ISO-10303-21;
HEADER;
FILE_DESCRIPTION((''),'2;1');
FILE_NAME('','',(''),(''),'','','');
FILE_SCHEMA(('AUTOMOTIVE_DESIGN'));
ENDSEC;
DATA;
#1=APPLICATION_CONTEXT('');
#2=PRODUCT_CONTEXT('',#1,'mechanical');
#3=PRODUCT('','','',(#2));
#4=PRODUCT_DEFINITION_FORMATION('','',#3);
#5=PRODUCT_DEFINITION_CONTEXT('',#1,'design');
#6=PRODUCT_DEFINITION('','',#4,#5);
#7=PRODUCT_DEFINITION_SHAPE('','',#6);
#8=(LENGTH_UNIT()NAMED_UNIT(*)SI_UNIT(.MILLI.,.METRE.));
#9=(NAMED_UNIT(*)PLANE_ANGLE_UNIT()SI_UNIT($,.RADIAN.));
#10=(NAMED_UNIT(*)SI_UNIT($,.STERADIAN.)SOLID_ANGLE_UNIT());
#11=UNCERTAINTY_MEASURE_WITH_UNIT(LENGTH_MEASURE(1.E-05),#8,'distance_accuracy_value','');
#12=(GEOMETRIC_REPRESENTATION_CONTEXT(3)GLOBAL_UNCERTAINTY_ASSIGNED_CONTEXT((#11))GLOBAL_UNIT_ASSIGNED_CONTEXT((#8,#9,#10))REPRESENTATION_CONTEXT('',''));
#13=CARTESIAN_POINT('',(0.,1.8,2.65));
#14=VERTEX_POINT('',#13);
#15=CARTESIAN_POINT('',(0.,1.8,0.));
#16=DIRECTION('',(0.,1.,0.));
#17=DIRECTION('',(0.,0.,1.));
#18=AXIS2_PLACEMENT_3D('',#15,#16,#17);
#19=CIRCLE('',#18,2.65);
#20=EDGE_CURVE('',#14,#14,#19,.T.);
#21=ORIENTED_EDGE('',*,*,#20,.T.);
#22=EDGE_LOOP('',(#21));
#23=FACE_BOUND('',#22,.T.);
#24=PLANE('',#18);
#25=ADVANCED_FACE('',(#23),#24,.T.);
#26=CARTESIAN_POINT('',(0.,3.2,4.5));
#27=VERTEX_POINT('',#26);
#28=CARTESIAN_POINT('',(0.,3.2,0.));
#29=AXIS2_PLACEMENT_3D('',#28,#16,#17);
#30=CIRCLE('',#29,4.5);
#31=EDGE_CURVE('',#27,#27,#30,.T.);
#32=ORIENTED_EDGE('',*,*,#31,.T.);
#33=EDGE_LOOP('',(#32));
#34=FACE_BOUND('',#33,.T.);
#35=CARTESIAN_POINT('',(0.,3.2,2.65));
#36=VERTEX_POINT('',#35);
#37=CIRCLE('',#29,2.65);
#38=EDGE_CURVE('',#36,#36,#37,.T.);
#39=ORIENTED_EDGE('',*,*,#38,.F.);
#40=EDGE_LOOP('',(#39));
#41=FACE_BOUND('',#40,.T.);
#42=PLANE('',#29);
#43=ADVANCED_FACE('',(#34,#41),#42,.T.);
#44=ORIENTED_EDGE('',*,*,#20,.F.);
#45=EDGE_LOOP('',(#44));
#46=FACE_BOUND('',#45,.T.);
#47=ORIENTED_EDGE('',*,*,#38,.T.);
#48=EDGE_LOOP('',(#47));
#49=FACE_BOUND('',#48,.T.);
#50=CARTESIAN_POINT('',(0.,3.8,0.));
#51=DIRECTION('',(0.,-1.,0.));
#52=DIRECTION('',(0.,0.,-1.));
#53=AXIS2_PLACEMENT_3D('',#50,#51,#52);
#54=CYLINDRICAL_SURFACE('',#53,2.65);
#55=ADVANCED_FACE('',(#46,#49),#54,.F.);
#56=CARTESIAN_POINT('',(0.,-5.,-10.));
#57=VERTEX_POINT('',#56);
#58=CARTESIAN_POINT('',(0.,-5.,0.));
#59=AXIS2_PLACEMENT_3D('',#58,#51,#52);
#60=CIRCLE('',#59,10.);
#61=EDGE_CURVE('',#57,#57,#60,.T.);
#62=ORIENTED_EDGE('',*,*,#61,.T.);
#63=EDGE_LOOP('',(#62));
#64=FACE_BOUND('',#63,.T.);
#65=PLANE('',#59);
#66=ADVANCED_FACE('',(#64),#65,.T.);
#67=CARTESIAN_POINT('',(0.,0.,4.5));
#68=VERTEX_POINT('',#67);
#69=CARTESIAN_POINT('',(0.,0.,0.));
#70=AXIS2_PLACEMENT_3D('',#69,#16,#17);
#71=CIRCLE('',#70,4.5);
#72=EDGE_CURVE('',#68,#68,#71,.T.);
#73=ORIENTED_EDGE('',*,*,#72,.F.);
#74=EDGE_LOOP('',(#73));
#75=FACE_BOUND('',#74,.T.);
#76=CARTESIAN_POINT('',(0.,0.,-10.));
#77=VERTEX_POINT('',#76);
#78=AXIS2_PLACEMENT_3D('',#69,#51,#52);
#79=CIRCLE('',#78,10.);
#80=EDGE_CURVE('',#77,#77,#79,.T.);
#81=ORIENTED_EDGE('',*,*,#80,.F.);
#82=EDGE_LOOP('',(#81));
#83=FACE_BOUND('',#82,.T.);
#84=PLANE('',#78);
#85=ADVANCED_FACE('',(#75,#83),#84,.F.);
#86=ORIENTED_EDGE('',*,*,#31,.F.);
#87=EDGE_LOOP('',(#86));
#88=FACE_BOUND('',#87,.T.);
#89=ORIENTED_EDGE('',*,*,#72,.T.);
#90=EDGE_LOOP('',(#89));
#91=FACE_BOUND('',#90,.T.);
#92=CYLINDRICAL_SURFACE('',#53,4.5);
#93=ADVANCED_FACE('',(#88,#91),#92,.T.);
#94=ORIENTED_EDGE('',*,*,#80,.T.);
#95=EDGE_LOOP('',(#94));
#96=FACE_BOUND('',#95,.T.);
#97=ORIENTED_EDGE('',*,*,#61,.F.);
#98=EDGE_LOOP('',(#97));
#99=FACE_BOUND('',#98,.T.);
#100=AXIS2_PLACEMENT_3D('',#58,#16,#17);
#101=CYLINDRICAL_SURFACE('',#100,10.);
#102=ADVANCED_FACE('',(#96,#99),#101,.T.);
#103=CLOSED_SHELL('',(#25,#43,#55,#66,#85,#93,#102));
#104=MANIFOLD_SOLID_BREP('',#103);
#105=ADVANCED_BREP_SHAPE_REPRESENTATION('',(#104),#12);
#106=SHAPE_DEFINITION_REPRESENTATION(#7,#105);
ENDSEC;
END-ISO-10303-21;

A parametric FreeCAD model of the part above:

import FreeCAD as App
import Part
import Sketcher
from FreeCAD import Vector
Q = App.Units.Quantity

doc = App.newDocument("Part")
body = doc.addObject("PartDesign::Body", "Body")

sketch1 = body.newObject("Sketcher::SketchObject", "Sketch")
sketch1.AttachmentSupport = (doc.getObject("XZ_Plane"), [""])
sketch1.MapMode = "FlatFace"
sketch1.addGeometry(Part.Circle(Vector(0, 0, 0), Vector(0, 0, 1), 4.5), False)
sketch1.addGeometry(Part.Circle(Vector(0, 0, 0), Vector(0, 0, 1), 2.65), False)
sketch1.addConstraint(Sketcher.Constraint("Coincident", 0, 3, -1, 1))
sketch1.addConstraint(Sketcher.Constraint("Coincident", 1, 3, -1, 1))
sketch1.addConstraint(Sketcher.Constraint("Diameter", 0, Q("9 mm")))
sketch1.addConstraint(Sketcher.Constraint("Diameter", 1, Q("5.3 mm")))
pad1 = body.newObject("PartDesign::Pad", "Pad")
pad1.Profile = sketch1
pad1.Length = 3.8
pad1.Reversed = True

sketch2 = body.newObject("Sketcher::SketchObject", "Sketch001")
sketch2.AttachmentSupport = (doc.getObject("XZ_Plane"), [""])
sketch2.MapMode = "FlatFace"
sketch2.addGeometry(Part.Circle(Vector(0, 0, 0), Vector(0, 0, 1), 2.65), False)
sketch2.addConstraint(Sketcher.Constraint("Coincident", 0, 3, -1, 1))
sketch2.addConstraint(Sketcher.Constraint("Diameter", 0, Q("5.3 mm")))
pad2 = body.newObject("PartDesign::Pad", "Pad001")
pad2.Profile = sketch2
pad2.Length = 1.8
pad2.Reversed = True

sketch3 = body.newObject("Sketcher::SketchObject", "Sketch002")
sketch3.AttachmentSupport = (doc.getObject("XZ_Plane"), [""])
sketch3.MapMode = "FlatFace"
sketch3.addGeometry(Part.Circle(Vector(0, 0, 0), Vector(0, 0, 1), 10), False)
sketch3.addConstraint(Sketcher.Constraint("Coincident", 0, 3, -1, 1))
sketch3.addConstraint(Sketcher.Constraint("Diameter", 0, Q("20 mm")))
pad3 = body.newObject("PartDesign::Pad", "Pad002")
pad3.Profile = sketch3
pad3.Length = 5

sketch4 = body.newObject("Sketcher::SketchObject", "Sketch003")
sketch4.AttachmentSupport = (doc.getObject("XZ_Plane"), [""])
sketch4.MapMode = "FlatFace"
sketch4.AttachmentOffset = App.Placement(Vector(0, 0, -3.8), App.Rotation())
sketch4.addGeometry(Part.Circle(Vector(0, 0, 0), Vector(0, 0, 1), 6.80911), False)
sketch4.addConstraint(Sketcher.Constraint("Coincident", 0, 3, -1, 1))
sketch4.addConstraint(Sketcher.Constraint("Diameter", 0, Q("13.61822 mm")))
pocket1 = body.newObject("PartDesign::Pocket", "Pocket")
pocket1.Profile = sketch4
pocket1.Length = 0.6
pocket1.Reversed = True

doc.recompute()
